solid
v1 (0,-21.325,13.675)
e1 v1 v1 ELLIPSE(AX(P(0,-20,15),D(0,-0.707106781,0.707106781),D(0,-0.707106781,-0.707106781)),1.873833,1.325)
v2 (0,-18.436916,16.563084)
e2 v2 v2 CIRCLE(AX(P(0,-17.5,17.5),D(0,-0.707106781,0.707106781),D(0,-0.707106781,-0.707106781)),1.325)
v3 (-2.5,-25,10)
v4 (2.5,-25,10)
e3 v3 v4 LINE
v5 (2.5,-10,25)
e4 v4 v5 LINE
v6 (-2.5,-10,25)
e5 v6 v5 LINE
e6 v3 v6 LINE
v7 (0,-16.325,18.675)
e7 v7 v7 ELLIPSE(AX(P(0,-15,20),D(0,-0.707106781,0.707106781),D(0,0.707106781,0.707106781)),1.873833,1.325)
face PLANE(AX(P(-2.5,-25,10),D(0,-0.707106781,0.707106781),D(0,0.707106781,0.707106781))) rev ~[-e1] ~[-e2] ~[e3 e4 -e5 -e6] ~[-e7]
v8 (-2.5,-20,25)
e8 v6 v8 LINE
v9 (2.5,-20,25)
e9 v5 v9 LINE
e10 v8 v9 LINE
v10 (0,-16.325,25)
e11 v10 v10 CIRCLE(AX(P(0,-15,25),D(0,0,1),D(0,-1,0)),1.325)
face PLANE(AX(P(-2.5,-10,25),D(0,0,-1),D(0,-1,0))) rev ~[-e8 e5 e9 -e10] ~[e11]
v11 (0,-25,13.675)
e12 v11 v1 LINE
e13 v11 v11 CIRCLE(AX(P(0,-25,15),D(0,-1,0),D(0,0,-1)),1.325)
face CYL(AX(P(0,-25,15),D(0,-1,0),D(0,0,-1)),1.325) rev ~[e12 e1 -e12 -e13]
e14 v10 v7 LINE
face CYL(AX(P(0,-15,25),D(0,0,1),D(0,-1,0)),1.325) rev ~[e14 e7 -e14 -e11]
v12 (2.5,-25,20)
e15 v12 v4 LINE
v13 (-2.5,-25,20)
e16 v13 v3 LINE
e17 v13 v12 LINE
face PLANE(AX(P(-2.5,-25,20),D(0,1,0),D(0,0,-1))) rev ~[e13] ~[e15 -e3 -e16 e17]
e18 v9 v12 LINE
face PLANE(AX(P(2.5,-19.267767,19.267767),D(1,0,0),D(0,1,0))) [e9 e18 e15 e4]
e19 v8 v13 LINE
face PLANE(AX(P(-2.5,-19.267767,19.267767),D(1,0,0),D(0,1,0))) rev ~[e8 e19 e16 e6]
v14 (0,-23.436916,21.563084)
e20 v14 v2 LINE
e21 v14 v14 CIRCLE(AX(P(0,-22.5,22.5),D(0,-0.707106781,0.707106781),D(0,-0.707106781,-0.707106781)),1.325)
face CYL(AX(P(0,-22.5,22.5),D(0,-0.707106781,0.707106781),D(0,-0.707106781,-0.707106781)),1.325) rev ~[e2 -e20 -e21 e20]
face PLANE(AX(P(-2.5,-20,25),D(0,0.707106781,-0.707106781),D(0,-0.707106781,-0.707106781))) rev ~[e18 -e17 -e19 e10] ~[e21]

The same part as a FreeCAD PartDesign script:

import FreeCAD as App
import Part
import Sketcher
from FreeCAD import Vector


def add_polygon(sketch, points):
    """Adds a closed chain of lines whose ends are joined by coincident constraints."""
    first, n = sketch.GeometryCount, len(points)
    for a, b in zip(points, points[1:] + points[:1]):
        sketch.addGeometry(Part.LineSegment(App.Vector(*a, 0), App.Vector(*b, 0)), False)
    for i in range(n):
        sketch.addConstraint(Sketcher.Constraint("Coincident", first + i, 2, first + (i + 1) % n, 1))

doc = App.newDocument("Part")
body = doc.addObject("PartDesign::Body", "Body")

# Sketch on XZ plane
sketch1 = doc.addObject("Sketcher::SketchObject", "Sketch")
body.addObject(sketch1)
sketch1.AttachmentSupport = (doc.XZ_Plane, [""])
sketch1.MapMode = "FlatFace"
sketch1.AttachmentOffset = App.Placement(Vector(0, 0, -2.5), App.Rotation())
add_polygon(sketch1, [(-10, 25), (-20, 25), (-25, 20), (-25, 10)])  # lines 0-3
sketch1.addConstraint([
    Sketcher.Constraint("Horizontal", 0),
    Sketcher.Constraint("Vertical", 2),
    Sketcher.Constraint("Parallel", 1, 3),
    Sketcher.Constraint("Equal", 0, 2),
    Sketcher.Constraint("DistanceX", 0, 2, 0, 1, 10.0),
    Sketcher.Constraint("DistanceX", 0, 2, -1, 1, 20.0),
    Sketcher.Constraint("DistanceY", -1, 1, 0, 2, 25.0),
    Sketcher.Constraint("DistanceX", 1, 2, -1, 1, 25.0),
])
pad1 = doc.addObject("PartDesign::Pad", "Pad")
body.addObject(pad1)
pad1.Profile = sketch1
pad1.Length = 5

# Sketch on XY plane
sketch2 = doc.addObject("Sketcher::SketchObject", "Sketch001")
body.addObject(sketch2)
sketch2.AttachmentSupport = (doc.XY_Plane, [""])
sketch2.MapMode = "FlatFace"
sketch2.AttachmentOffset = App.Placement(Vector(0, 0, 25), App.Rotation())
sketch2.addGeometry(Part.Circle(Vector(-15, 0, 0), Vector(0, 0, 1), 1.325), False)
sketch2.addConstraint([
    Sketcher.Constraint("PointOnObject", 0, 3, -1),
    Sketcher.Constraint("Diameter", 0, 2.65),
    Sketcher.Constraint("DistanceX", 0, 3, -1, 1, 15.0),
])
pocket1 = doc.addObject("PartDesign::Pocket", "Pocket")
body.addObject(pocket1)
pocket1.Profile = sketch2
pocket1.Type = "ThroughAll"

# Sketch on an angled plane
sketch3 = doc.addObject("Sketcher::SketchObject", "Sketch002")
body.addObject(sketch3)
sketch3.Placement = App.Placement(Vector(-22.5, 0, 22.5), App.Rotation(Vector(-0.707106781, 0, -0.707106781), Vector(0, -0.999999999, 0), Vector(-0.707106781, 0, 0.707106781), "ZXY"))
sketch3.addGeometry(Part.Circle(Vector(0, 0, 0), Vector(0, 0, 1), 1.325), False)
sketch3.addConstraint([
    Sketcher.Constraint("Coincident", 0, 3, -1, 1),
    Sketcher.Constraint("Diameter", 0, 2.65),
])
pocket2 = doc.addObject("PartDesign::Pocket", "Pocket001")
body.addObject(pocket2)
pocket2.Profile = sketch3
pocket2.Type = "ThroughAll"

# Sketch on YZ plane
sketch4 = doc.addObject("Sketcher::SketchObject", "Sketch003")
body.addObject(sketch4)
sketch4.AttachmentSupport = (doc.YZ_Plane, [""])
sketch4.MapMode = "FlatFace"
sketch4.AttachmentOffset = App.Placement(Vector(0, 0, -25), App.Rotation())
sketch4.addGeometry(Part.Circle(Vector(0, 15, 0), Vector(0, 0, 1), 1.325), False)
sketch4.addConstraint([
    Sketcher.Constraint("PointOnObject", 0, 3, -2),
    Sketcher.Constraint("Diameter", 0, 2.65),
    Sketcher.Constraint("DistanceY", -1, 1, 0, 3, 15.0),
])
pocket3 = doc.addObject("PartDesign::Pocket", "Pocket002")
body.addObject(pocket3)
pocket3.Profile = sketch4
pocket3.Type = "ThroughAll"
pocket3.Reversed = True
body2 = doc.addObject("PartDesign::Body", "Body001")
doc.recompute()

body.Placement = App.Placement(Vector(0, 0, 0), App.Rotation(Vector(0, 0, 1), 90))
boolean = doc.addObject("PartDesign::Boolean", "Boolean")
body2.addObject(boolean)
boolean.Type = "Fuse"
boolean.addObjects([body])

doc.recompute()
